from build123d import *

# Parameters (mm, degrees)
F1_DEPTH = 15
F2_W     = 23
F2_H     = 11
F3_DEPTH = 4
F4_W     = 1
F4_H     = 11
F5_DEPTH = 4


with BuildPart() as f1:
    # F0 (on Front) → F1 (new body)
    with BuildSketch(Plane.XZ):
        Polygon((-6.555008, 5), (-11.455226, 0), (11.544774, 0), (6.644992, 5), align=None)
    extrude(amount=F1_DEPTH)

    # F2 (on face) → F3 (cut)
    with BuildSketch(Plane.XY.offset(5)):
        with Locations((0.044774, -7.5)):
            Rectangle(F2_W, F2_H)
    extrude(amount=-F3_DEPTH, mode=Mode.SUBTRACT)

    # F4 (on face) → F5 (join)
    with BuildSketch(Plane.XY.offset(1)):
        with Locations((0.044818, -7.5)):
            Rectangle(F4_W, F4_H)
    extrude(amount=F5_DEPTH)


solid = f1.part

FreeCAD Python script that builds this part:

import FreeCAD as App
import Part
import Sketcher
from FreeCAD import Vector
Q = App.Units.Quantity

doc = App.newDocument("Part")
body = doc.addObject("PartDesign::Body", "Body")

sketch1 = doc.addObject("Sketcher::SketchObject", "Sketch")
body.addObject(sketch1)
sketch1.AttachmentSupport = (doc.XZ_Plane, [""])
sketch1.MapMode = "FlatFace"
sketch1.addGeometry([
    Part.LineSegment(Vector(-6.555008, 5, 0), Vector(-11.455226, 0, 0)),
    Part.LineSegment(Vector(-11.455226, 0, 0), Vector(11.544774, 0, 0)),
    Part.LineSegment(Vector(11.544774, 0, 0), Vector(6.644992, 5, 0)),
    Part.LineSegment(Vector(6.644992, 5, 0), Vector(-6.555008, 5, 0)),
], False)
sketch1.addConstraint([
    Sketcher.Constraint("Coincident", 0, 2, 1, 1),
    Sketcher.Constraint("Coincident", 1, 2, 2, 1),
    Sketcher.Constraint("Coincident", 2, 2, 3, 1),
    Sketcher.Constraint("Coincident", 3, 2, 0, 1),
    Sketcher.Constraint("Horizontal", 1),
    Sketcher.Constraint("Horizontal", 3),
    Sketcher.Constraint("PointOnObject", 0, 2, -1),
    Sketcher.Constraint("DistanceX", 1, 1, 1, 2, 23.0),
    Sketcher.Constraint("DistanceX", 3, 2, 3, 1, 13.2),
    Sketcher.Constraint("DistanceY", -1, 1, 2, 2, 5.0),
    Sketcher.Constraint("Angle", 2, Q("134.42 deg")),
    Sketcher.Constraint("DistanceX", 0, 2, -1, 1, 11.455226),
])
pad1 = doc.addObject("PartDesign::Pad", "Pad")
body.addObject(pad1)
pad1.Profile = sketch1
pad1.Length = 15

sketch2 = doc.addObject("Sketcher::SketchObject", "Sketch001")
body.addObject(sketch2)
sketch2.AttachmentSupport = (doc.XY_Plane, [""])
sketch2.MapMode = "FlatFace"
sketch2.AttachmentOffset = App.Placement(Vector(0, 0, 5), App.Rotation())
sketch2.addGeometry([
    Part.LineSegment(Vector(-11.455226, -2, 0), Vector(-11.455226, -13, 0)),
    Part.LineSegment(Vector(-11.455226, -13, 0), Vector(11.544774, -13, 0)),
    Part.LineSegment(Vector(11.544774, -13, 0), Vector(11.544774, -2, 0)),
    Part.LineSegment(Vector(11.544774, -2, 0), Vector(-11.455226, -2, 0)),
], False)
sketch2.addConstraint([
    Sketcher.Constraint("Coincident", 0, 2, 1, 1),
    Sketcher.Constraint("Coincident", 1, 2, 2, 1),
    Sketcher.Constraint("Coincident", 2, 2, 3, 1),
    Sketcher.Constraint("Coincident", 3, 2, 0, 1),
    Sketcher.Constraint("Vertical", 0),
    Sketcher.Constraint("Horizontal", 1),
    Sketcher.Constraint("Vertical", 2),
    Sketcher.Constraint("Horizontal", 3),
    Sketcher.Constraint("DistanceX", 1, 1, 1, 2, 23.0),
    Sketcher.Constraint("DistanceY", 0, 2, 0, 1, 11.0),
    Sketcher.Constraint("DistanceY", 0, 2, -1, 1, 13.0),
    Sketcher.Constraint("DistanceX", 0, 2, -1, 1, 11.455226),
])
pocket1 = doc.addObject("PartDesign::Pocket", "Pocket")
body.addObject(pocket1)
pocket1.Profile = sketch2
pocket1.Length = 4

sketch3 = doc.addObject("Sketcher::SketchObject", "Sketch002")
body.addObject(sketch3)
sketch3.AttachmentSupport = (doc.XY_Plane, [""])
sketch3.MapMode = "FlatFace"
sketch3.AttachmentOffset = App.Placement(Vector(0, 0, 1), App.Rotation())
sketch3.addGeometry([
    Part.LineSegment(Vector(-0.455182, -2, 0), Vector(-0.455182, -13, 0)),
    Part.LineSegment(Vector(-0.455182, -13, 0), Vector(0.544818, -13, 0)),
    Part.LineSegment(Vector(0.544818, -13, 0), Vector(0.544818, -2, 0)),
    Part.LineSegment(Vector(0.544818, -2, 0), Vector(-0.455182, -2, 0)),
], False)
sketch3.addConstraint([
    Sketcher.Constraint("Coincident", 0, 2, 1, 1),
    Sketcher.Constraint("Coincident", 1, 2, 2, 1),
    Sketcher.Constraint("Coincident", 2, 2, 3, 1),
    Sketcher.Constraint("Coincident", 3, 2, 0, 1),
    Sketcher.Constraint("Vertical", 0),
    Sketcher.Constraint("Horizontal", 1),
    Sketcher.Constraint("Vertical", 2),
    Sketcher.Constraint("Horizontal", 3),
    Sketcher.Constraint("DistanceX", 1, 1, 1, 2, 1.0),
    Sketcher.Constraint("DistanceY", 0, 2, 0, 1, 11.0),
    Sketcher.Constraint("DistanceY", 0, 2, -1, 1, 13.0),
    Sketcher.Constraint("DistanceX", -1, 1, 1, 2, 0.544818),
])
pad2 = doc.addObject("PartDesign::Pad", "Pad001")
body.addObject(pad2)
pad2.Profile = sketch3
pad2.Length = 4

doc.recompute()
